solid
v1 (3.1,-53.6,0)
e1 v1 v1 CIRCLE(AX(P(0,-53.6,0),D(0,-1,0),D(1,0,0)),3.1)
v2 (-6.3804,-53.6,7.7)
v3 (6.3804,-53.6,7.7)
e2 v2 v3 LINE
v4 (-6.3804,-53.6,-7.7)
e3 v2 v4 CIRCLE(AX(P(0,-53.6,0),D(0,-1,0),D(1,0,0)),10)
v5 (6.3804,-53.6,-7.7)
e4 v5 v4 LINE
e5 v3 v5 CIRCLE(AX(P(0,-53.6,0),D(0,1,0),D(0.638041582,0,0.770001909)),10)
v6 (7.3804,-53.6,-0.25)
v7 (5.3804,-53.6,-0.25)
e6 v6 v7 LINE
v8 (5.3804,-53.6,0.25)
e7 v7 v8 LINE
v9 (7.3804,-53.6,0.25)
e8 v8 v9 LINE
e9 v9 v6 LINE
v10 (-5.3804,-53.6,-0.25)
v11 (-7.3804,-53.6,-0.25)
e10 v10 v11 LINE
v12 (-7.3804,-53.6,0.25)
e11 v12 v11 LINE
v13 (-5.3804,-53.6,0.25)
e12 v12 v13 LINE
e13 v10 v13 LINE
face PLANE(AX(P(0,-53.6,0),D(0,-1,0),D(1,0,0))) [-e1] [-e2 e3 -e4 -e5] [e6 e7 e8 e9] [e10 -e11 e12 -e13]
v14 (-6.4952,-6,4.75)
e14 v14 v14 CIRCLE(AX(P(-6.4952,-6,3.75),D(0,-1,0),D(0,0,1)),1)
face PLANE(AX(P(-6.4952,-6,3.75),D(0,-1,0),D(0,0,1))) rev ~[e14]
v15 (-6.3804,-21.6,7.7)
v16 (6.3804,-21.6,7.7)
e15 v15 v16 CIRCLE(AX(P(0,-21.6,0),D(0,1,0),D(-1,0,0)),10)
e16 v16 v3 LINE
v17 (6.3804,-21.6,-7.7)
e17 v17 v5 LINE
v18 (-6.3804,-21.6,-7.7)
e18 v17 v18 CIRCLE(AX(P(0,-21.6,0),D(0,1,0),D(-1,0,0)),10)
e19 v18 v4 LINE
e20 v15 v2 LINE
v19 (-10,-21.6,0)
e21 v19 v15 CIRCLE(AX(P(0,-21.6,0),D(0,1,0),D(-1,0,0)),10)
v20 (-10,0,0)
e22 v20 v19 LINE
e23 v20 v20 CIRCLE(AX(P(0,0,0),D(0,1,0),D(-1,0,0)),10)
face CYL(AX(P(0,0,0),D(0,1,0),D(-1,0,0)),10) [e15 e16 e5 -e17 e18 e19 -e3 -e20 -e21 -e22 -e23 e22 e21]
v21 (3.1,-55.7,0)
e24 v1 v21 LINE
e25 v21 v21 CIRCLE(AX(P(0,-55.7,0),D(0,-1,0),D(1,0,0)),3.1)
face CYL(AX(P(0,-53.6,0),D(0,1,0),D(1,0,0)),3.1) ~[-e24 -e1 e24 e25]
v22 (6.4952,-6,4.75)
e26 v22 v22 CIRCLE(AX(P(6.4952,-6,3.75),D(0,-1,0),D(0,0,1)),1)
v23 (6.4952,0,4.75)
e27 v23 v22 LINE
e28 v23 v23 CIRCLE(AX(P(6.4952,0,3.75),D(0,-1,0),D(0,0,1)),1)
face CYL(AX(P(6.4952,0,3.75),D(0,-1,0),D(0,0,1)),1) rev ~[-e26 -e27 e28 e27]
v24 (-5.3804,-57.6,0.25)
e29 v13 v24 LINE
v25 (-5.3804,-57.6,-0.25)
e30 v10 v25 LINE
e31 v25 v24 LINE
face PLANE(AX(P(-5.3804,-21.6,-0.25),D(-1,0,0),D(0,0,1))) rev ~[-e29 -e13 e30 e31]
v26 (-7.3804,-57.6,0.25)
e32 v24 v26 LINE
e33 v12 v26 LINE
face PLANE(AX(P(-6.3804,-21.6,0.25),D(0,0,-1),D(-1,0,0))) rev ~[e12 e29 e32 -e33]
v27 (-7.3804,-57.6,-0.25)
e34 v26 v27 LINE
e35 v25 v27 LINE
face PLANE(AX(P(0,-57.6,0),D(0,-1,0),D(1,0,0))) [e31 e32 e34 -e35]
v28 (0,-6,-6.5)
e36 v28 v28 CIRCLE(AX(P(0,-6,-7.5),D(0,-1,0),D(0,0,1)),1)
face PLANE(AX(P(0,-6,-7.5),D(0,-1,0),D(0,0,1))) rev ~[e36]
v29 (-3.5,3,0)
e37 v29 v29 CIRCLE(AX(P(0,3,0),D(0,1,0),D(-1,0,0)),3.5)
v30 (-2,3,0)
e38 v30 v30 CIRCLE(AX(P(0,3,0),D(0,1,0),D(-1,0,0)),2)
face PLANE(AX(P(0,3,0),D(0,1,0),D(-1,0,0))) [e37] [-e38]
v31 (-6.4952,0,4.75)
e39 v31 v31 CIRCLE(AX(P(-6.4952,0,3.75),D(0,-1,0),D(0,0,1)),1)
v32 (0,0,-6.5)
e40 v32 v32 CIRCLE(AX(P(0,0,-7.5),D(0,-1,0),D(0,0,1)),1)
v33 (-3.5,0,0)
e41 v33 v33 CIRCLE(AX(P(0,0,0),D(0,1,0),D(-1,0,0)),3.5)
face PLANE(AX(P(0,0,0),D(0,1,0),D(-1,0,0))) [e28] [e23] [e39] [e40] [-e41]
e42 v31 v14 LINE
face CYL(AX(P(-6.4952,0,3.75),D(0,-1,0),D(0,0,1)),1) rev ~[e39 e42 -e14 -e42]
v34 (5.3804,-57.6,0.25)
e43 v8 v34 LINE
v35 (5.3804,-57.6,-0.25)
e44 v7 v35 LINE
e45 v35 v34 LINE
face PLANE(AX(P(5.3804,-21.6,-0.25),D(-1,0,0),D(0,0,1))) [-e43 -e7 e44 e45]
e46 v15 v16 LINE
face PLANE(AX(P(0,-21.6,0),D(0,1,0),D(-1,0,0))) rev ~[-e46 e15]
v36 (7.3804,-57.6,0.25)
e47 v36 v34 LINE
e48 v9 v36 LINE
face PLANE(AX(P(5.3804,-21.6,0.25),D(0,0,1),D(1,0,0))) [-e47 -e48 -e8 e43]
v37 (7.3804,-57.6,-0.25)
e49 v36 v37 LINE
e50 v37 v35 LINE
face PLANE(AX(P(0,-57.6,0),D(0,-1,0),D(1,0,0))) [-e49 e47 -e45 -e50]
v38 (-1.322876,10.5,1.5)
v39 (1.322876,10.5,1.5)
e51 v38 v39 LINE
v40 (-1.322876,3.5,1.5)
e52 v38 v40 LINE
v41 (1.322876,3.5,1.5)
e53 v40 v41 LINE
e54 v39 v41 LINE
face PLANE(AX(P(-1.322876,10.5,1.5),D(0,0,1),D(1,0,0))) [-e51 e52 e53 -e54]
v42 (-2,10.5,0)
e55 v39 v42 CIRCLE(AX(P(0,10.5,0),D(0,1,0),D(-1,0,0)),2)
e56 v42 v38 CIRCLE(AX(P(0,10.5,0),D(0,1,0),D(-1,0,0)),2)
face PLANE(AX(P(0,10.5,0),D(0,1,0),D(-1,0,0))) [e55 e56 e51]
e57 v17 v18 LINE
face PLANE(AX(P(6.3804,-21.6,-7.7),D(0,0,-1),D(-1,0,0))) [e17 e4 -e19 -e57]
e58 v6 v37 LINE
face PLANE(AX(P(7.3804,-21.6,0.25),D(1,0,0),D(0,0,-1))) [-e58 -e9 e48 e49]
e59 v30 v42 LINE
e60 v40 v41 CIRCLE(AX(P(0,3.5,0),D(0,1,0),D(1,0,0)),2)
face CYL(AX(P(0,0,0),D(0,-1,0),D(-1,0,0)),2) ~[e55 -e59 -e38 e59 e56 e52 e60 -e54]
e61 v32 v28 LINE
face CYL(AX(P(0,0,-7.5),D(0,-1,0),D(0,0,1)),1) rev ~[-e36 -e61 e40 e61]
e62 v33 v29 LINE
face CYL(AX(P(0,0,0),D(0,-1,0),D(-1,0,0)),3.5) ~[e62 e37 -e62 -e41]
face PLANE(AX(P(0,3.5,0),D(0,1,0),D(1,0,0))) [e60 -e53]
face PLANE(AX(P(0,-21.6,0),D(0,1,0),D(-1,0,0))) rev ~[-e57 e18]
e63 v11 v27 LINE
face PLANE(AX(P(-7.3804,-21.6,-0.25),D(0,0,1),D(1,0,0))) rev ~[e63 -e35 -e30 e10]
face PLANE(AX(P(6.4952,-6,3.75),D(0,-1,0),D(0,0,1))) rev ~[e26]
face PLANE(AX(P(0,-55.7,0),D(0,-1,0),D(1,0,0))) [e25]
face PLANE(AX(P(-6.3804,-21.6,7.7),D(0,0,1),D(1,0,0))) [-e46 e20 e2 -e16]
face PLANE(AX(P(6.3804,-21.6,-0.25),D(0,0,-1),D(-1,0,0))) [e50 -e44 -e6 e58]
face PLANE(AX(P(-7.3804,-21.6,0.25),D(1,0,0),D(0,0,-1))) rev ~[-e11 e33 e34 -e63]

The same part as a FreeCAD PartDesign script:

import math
import FreeCAD as App
import Part
import Sketcher

V = App.Vector

doc = App.newDocument("Part")
body = doc.addObject("PartDesign::Body", "Body")

sketch1 = body.newObject("Sketcher::SketchObject", "Sketch")
sketch1.AttachmentSupport = (doc.getObject("XZ_Plane"), [""])
sketch1.MapMode = "FlatFace"
sketch1.addGeometry(Part.Circle(V(0, 0, 0), V(0, 0, 1), 10), False)
sketch1.addConstraint(Sketcher.Constraint("Coincident", 0, 3, -1, 1))
sketch1.addConstraint(Sketcher.Constraint("Diameter", 0, 20.0))
pad1 = body.newObject("PartDesign::Pad", "Pad")
pad1.Profile = sketch1
pad1.Length = 21.6

sketch2 = body.newObject("Sketcher::SketchObject", "Sketch001")
sketch2.AttachmentSupport = (doc.getObject("XZ_Plane"), [""])
sketch2.MapMode = "FlatFace"
sketch2.addGeometry(Part.Circle(V(0, 0, 0), V(0, 0, 1), 3.5), False)
sketch2.addGeometry(Part.Circle(V(0, 0, 0), V(0, 0, 1), 2), False)
sketch2.addConstraint(Sketcher.Constraint("Coincident", 0, 3, -1, 1))
sketch2.addConstraint(Sketcher.Constraint("Coincident", 1, 3, -1, 1))
sketch2.addConstraint(Sketcher.Constraint("Diameter", 0, 7.0))
sketch2.addConstraint(Sketcher.Constraint("Diameter", 1, 4.0))
pad2 = body.newObject("PartDesign::Pad", "Pad001")
pad2.Profile = sketch2
pad2.Length = 3
pad2.Reversed = True

sketch3 = body.newObject("Sketcher::SketchObject", "Sketch002")
sketch3.AttachmentSupport = (doc.getObject("XZ_Plane"), [""])
sketch3.MapMode = "FlatFace"
sketch3.addGeometry(Part.Circle(V(0, 0, 0), V(0, 0, 1), 2), False)
sketch3.addConstraint(Sketcher.Constraint("Coincident", 0, 3, -1, 1))
sketch3.addConstraint(Sketcher.Constraint("Diameter", 0, 4.0))
pad3 = body.newObject("PartDesign::Pad", "Pad002")
pad3.Profile = sketch3
pad3.Length = 10.5
pad3.Reversed = True

sketch4 = body.newObject("Sketcher::SketchObject", "Sketch003")
sketch4.AttachmentSupport = (doc.getObject("XZ_Plane"), [""])
sketch4.MapMode = "FlatFace"
sketch4.AttachmentOffset = App.Placement(V(0, 0, -10.5), App.Rotation())
sketch4.addGeometry(Part.LineSegment(V(1.3, 1.5, 0), V(-1.3, 1.5, 0)), False)
sketch4.addGeometry(Part.ArcOfCircle(Part.Circle(V(0, 0, 0), V(0, 0, 1), 2), math.radians(49), math.radians(131)), False)
sketch4.addConstraint(Sketcher.Constraint("Coincident", 0, 1, 1, 1))
sketch4.addConstraint(Sketcher.Constraint("Coincident", 1, 2, 0, 2))
sketch4.addConstraint(Sketcher.Constraint("Horizontal", 0))
sketch4.addConstraint(Sketcher.Constraint("Coincident", 1, 3, -1, 1))
sketch4.addConstraint(Sketcher.Constraint("Radius", 1, 2.0))
sketch4.addConstraint(Sketcher.Constraint("DistanceY", -1, 1, 0, 1, 1.5))
pocket1 = body.newObject("PartDesign::Pocket", "Pocket")
pocket1.Profile = sketch4
pocket1.Length = 7
pocket1.Reversed = True

sketch5 = body.newObject("Sketcher::SketchObject", "Sketch004")
sketch5.AttachmentSupport = (doc.getObject("XZ_Plane"), [""])
sketch5.MapMode = "FlatFace"
sketch5.AttachmentOffset = App.Placement(V(0, 0, 21.6), App.Rotation())
sketch5.addGeometry(Part.LineSegment(V(5.4, -0.2, 0), V(7.4, -0.2, 0)), False)
sketch5.addGeometry(Part.LineSegment(V(7.4, -0.2, 0), V(7.4, 0.2, 0)), False)
sketch5.addGeometry(Part.LineSegment(V(7.4, 0.2, 0), V(5.4, 0.2, 0)), False)
sketch5.addGeometry(Part.LineSegment(V(5.4, 0.2, 0), V(5.4, -0.2, 0)), False)
sketch5.addGeometry(Part.LineSegment(V(-7.4, -0.2, 0), V(-5.4, -0.2, 0)), False)
sketch5.addGeometry(Part.LineSegment(V(-5.4, -0.2, 0), V(-5.4, 0.2, 0)), False)
sketch5.addGeometry(Part.LineSegment(V(-5.4, 0.2, 0), V(-7.4, 0.2, 0)), False)
sketch5.addGeometry(Part.LineSegment(V(-7.4, 0.2, 0), V(-7.4, -0.2, 0)), False)
sketch5.addConstraint(Sketcher.Constraint("Coincident", 0, 2, 1, 1))
sketch5.addConstraint(Sketcher.Constraint("Coincident", 1, 2, 2, 1))
sketch5.addConstraint(Sketcher.Constraint("Coincident", 2, 2, 3, 1))
sketch5.addConstraint(Sketcher.Constraint("Coincident", 3, 2, 0, 1))
sketch5.addConstraint(Sketcher.Constraint("Coincident", 4, 2, 5, 1))
sketch5.addConstraint(Sketcher.Constraint("Coincident", 5, 2, 6, 1))
sketch5.addConstraint(Sketcher.Constraint("Coincident", 6, 2, 7, 1))
sketch5.addConstraint(Sketcher.Constraint("Coincident", 7, 2, 4, 1))
sketch5.addConstraint(Sketcher.Constraint("Horizontal", 0))
sketch5.addConstraint(Sketcher.Constraint("Vertical", 1))
sketch5.addConstraint(Sketcher.Constraint("Horizontal", 2))
sketch5.addConstraint(Sketcher.Constraint("Vertical", 3))
sketch5.addConstraint(Sketcher.Constraint("Horizontal", 4))
sketch5.addConstraint(Sketcher.Constraint("Vertical", 5))
sketch5.addConstraint(Sketcher.Constraint("Horizontal", 6))
sketch5.addConstraint(Sketcher.Constraint("Vertical", 7))
sketch5.addConstraint(Sketcher.Constraint("Symmetric", 2, 2, 4, 2, -1, 1))
sketch5.addConstraint(Sketcher.Constraint("Symmetric", 0, 2, 6, 2, -1, 1))
sketch5.addConstraint(Sketcher.Constraint("Horizontal", 3, 2, 4, 2))
sketch5.addConstraint(Sketcher.Constraint("DistanceX", 0, 1, 0, 2, 2.0))
sketch5.addConstraint(Sketcher.Constraint("DistanceY", 1, 1, 1, 2, 0.5))
sketch5.addConstraint(Sketcher.Constraint("DistanceX", -1, 1, 0, 2, 7.3804))
pad4 = body.newObject("PartDesign::Pad", "Pad003")
pad4.Profile = sketch5
pad4.Length = 36

sketch6 = body.newObject("Sketcher::SketchObject", "Sketch005")
sketch6.AttachmentSupport = (doc.getObject("XZ_Plane"), [""])
sketch6.MapMode = "FlatFace"
sketch6.AttachmentOffset = App.Placement(V(0, 0, 21.6), App.Rotation())
sketch6.addGeometry(Part.LineSegment(V(-6.4, -7.7, 0), V(6.4, -7.7, 0)), False)
sketch6.addGeometry(Part.ArcOfCircle(Part.Circle(V(0, 0, 0), V(0, 0, 1), 10), math.radians(-50), math.radians(50)), False)
sketch6.addGeometry(Part.LineSegment(V(6.4, 7.7, 0), V(-6.4, 7.7, 0)), False)
sketch6.addGeometry(Part.ArcOfCircle(Part.Circle(V(0, 0, 0), V(0, 0, 1), 10), math.radians(130), math.radians(230)), False)
sketch6.addGeometry(Part.LineSegment(V(-5.4, -0.2, 0), V(-7.4, -0.2, 0)), False)
sketch6.addGeometry(Part.LineSegment(V(-7.4, -0.2, 0), V(-7.4, 0.2, 0)), False)
sketch6.addGeometry(Part.LineSegment(V(-7.4, 0.2, 0), V(-5.4, 0.2, 0)), False)
sketch6.addGeometry(Part.LineSegment(V(-5.4, 0.2, 0), V(-5.4, -0.2, 0)), False)
sketch6.addGeometry(Part.LineSegment(V(5.4, 0.2, 0), V(7.4, 0.2, 0)), False)
sketch6.addGeometry(Part.LineSegment(V(7.4, 0.2, 0), V(7.4, -0.2, 0)), False)
sketch6.addGeometry(Part.LineSegment(V(7.4, -0.2, 0), V(5.4, -0.2, 0)), False)
sketch6.addGeometry(Part.LineSegment(V(5.4, -0.2, 0), V(5.4, 0.2, 0)), False)
sketch6.addConstraint(Sketcher.Constraint("Coincident", 0, 2, 1, 1))
sketch6.addConstraint(Sketcher.Constraint("Coincident", 1, 2, 2, 1))
sketch6.addConstraint(Sketcher.Constraint("Coincident", 2, 2, 3, 1))
sketch6.addConstraint(Sketcher.Constraint("Coincident", 3, 2, 0, 1))
sketch6.addConstraint(Sketcher.Constraint("Coincident", 4, 2, 5, 1))
sketch6.addConstraint(Sketcher.Constraint("Coincident", 5, 2, 6, 1))
sketch6.addConstraint(Sketcher.Constraint("Coincident", 6, 2, 7, 1))
sketch6.addConstraint(Sketcher.Constraint("Coincident", 7, 2, 4, 1))
sketch6.addConstraint(Sketcher.Constraint("Coincident", 8, 2, 9, 1))
sketch6.addConstraint(Sketcher.Constraint("Coincident", 9, 2, 10, 1))
sketch6.addConstraint(Sketcher.Constraint("Coincident", 10, 2, 11, 1))
sketch6.addConstraint(Sketcher.Constraint("Coincident", 11, 2, 8, 1))
sketch6.addConstraint(Sketcher.Constraint("Horizontal", 0))
sketch6.addConstraint(Sketcher.Constraint("Horizontal", 2))
sketch6.addConstraint(Sketcher.Constraint("Horizontal", 4))
sketch6.addConstraint(Sketcher.Constraint("Vertical", 5))
sketch6.addConstraint(Sketcher.Constraint("Horizontal", 6))
sketch6.addConstraint(Sketcher.Constraint("Vertical", 7))
sketch6.addConstraint(Sketcher.Constraint("Horizontal", 8))
sketch6.addConstraint(Sketcher.Constraint("Vertical", 9))
sketch6.addConstraint(Sketcher.Constraint("Horizontal", 10))
sketch6.addConstraint(Sketcher.Constraint("Vertical", 11))
sketch6.addConstraint(Sketcher.Constraint("Coincident", 1, 3, -1, 1))
sketch6.addConstraint(Sketcher.Constraint("Coincident", 3, 3, -1, 1))
sketch6.addConstraint(Sketcher.Constraint("Equal", 1, 3))
sketch6.addConstraint(Sketcher.Constraint("Symmetric", 4, 2, 8, 2, -1, 1))
sketch6.addConstraint(Sketcher.Constraint("Symmetric", 6, 2, 10, 2, -1, 1))
sketch6.addConstraint(Sketcher.Constraint("Horizontal", 6, 2, 8, 2))
sketch6.addConstraint(Sketcher.Constraint("Vertical", 0, 2, 1, 2))
sketch6.addConstraint(Sketcher.Constraint("DistanceX", 4, 2, 4, 1, 2.0))
sketch6.addConstraint(Sketcher.Constraint("DistanceY", 5, 1, 5, 2, 0.5))
sketch6.addConstraint(Sketcher.Constraint("Radius", 1, 10.0))
sketch6.addConstraint(Sketcher.Constraint("DistanceY", 0, 2, 1, 2, 15.4))
sketch6.addConstraint(Sketcher.Constraint("DistanceX", 4, 2, 3, 2, 1.0))
pad5 = body.newObject("PartDesign::Pad", "Pad004")
pad5.Profile = sketch6
pad5.Length = 32

sketch7 = body.newObject("Sketcher::SketchObject", "Sketch006")
sketch7.AttachmentSupport = (doc.getObject("XZ_Plane"), [""])
sketch7.MapMode = "FlatFace"
sketch7.AttachmentOffset = App.Placement(V(0, 0, 53.6), App.Rotation())
sketch7.addGeometry(Part.Circle(V(0, 0, 0), V(0, 0, 1), 3.1), False)
sketch7.addConstraint(Sketcher.Constraint("Coincident", 0, 3, -1, 1))
sketch7.addConstraint(Sketcher.Constraint("Diameter", 0, 6.2))
pad6 = body.newObject("PartDesign::Pad", "Pad005")
pad6.Profile = sketch7
pad6.Length = 2.1

sketch8 = body.newObject("Sketcher::SketchObject", "Sketch007")
sketch8.AttachmentSupport = (doc.getObject("XZ_Plane"), [""])
sketch8.MapMode = "FlatFace"
sketch8.addGeometry(Part.Circle(V(0, -7.5, 0), V(0, 0, 1), 1), False)
sketch8.addGeometry(Part.Circle(V(6.5, 3.8, 0), V(0, 0, 1), 1), False)
sketch8.addGeometry(Part.Circle(V(-6.5, 3.8, 0), V(0, 0, 1), 1), False)
sketch8.addConstraint(Sketcher.Constraint("Equal", 0, 1))
sketch8.addConstraint(Sketcher.Constraint("Equal", 1, 2))
sketch8.addConstraint(Sketcher.Constraint("Symmetric", 1, 3, 2, 3, -2))
sketch8.addConstraint(Sketcher.Constraint("PointOnObject", 0, 3, -2))
sketch8.addConstraint(Sketcher.Constraint("Diameter", 0, 2.0))
sketch8.addConstraint(Sketcher.Constraint("DistanceY", 0, 3, -1, 1, 7.5))
sketch8.addConstraint(Sketcher.Constraint("DistanceY", -1, 1, 1, 3, 3.75))
sketch8.addConstraint(Sketcher.Constraint("DistanceX", -1, 1, 1, 3, 6.4952))
doc.recompute()
hole = body.newObject("PartDesign::Hole", "Hole")
hole.Profile = sketch8
hole.ThreadType = "None"
hole.Diameter = 2
hole.DepthType = "Dimension"
hole.Depth = 6
hole.DrillPoint = "Flat"
hole.Reversed = True

doc.recompute()
